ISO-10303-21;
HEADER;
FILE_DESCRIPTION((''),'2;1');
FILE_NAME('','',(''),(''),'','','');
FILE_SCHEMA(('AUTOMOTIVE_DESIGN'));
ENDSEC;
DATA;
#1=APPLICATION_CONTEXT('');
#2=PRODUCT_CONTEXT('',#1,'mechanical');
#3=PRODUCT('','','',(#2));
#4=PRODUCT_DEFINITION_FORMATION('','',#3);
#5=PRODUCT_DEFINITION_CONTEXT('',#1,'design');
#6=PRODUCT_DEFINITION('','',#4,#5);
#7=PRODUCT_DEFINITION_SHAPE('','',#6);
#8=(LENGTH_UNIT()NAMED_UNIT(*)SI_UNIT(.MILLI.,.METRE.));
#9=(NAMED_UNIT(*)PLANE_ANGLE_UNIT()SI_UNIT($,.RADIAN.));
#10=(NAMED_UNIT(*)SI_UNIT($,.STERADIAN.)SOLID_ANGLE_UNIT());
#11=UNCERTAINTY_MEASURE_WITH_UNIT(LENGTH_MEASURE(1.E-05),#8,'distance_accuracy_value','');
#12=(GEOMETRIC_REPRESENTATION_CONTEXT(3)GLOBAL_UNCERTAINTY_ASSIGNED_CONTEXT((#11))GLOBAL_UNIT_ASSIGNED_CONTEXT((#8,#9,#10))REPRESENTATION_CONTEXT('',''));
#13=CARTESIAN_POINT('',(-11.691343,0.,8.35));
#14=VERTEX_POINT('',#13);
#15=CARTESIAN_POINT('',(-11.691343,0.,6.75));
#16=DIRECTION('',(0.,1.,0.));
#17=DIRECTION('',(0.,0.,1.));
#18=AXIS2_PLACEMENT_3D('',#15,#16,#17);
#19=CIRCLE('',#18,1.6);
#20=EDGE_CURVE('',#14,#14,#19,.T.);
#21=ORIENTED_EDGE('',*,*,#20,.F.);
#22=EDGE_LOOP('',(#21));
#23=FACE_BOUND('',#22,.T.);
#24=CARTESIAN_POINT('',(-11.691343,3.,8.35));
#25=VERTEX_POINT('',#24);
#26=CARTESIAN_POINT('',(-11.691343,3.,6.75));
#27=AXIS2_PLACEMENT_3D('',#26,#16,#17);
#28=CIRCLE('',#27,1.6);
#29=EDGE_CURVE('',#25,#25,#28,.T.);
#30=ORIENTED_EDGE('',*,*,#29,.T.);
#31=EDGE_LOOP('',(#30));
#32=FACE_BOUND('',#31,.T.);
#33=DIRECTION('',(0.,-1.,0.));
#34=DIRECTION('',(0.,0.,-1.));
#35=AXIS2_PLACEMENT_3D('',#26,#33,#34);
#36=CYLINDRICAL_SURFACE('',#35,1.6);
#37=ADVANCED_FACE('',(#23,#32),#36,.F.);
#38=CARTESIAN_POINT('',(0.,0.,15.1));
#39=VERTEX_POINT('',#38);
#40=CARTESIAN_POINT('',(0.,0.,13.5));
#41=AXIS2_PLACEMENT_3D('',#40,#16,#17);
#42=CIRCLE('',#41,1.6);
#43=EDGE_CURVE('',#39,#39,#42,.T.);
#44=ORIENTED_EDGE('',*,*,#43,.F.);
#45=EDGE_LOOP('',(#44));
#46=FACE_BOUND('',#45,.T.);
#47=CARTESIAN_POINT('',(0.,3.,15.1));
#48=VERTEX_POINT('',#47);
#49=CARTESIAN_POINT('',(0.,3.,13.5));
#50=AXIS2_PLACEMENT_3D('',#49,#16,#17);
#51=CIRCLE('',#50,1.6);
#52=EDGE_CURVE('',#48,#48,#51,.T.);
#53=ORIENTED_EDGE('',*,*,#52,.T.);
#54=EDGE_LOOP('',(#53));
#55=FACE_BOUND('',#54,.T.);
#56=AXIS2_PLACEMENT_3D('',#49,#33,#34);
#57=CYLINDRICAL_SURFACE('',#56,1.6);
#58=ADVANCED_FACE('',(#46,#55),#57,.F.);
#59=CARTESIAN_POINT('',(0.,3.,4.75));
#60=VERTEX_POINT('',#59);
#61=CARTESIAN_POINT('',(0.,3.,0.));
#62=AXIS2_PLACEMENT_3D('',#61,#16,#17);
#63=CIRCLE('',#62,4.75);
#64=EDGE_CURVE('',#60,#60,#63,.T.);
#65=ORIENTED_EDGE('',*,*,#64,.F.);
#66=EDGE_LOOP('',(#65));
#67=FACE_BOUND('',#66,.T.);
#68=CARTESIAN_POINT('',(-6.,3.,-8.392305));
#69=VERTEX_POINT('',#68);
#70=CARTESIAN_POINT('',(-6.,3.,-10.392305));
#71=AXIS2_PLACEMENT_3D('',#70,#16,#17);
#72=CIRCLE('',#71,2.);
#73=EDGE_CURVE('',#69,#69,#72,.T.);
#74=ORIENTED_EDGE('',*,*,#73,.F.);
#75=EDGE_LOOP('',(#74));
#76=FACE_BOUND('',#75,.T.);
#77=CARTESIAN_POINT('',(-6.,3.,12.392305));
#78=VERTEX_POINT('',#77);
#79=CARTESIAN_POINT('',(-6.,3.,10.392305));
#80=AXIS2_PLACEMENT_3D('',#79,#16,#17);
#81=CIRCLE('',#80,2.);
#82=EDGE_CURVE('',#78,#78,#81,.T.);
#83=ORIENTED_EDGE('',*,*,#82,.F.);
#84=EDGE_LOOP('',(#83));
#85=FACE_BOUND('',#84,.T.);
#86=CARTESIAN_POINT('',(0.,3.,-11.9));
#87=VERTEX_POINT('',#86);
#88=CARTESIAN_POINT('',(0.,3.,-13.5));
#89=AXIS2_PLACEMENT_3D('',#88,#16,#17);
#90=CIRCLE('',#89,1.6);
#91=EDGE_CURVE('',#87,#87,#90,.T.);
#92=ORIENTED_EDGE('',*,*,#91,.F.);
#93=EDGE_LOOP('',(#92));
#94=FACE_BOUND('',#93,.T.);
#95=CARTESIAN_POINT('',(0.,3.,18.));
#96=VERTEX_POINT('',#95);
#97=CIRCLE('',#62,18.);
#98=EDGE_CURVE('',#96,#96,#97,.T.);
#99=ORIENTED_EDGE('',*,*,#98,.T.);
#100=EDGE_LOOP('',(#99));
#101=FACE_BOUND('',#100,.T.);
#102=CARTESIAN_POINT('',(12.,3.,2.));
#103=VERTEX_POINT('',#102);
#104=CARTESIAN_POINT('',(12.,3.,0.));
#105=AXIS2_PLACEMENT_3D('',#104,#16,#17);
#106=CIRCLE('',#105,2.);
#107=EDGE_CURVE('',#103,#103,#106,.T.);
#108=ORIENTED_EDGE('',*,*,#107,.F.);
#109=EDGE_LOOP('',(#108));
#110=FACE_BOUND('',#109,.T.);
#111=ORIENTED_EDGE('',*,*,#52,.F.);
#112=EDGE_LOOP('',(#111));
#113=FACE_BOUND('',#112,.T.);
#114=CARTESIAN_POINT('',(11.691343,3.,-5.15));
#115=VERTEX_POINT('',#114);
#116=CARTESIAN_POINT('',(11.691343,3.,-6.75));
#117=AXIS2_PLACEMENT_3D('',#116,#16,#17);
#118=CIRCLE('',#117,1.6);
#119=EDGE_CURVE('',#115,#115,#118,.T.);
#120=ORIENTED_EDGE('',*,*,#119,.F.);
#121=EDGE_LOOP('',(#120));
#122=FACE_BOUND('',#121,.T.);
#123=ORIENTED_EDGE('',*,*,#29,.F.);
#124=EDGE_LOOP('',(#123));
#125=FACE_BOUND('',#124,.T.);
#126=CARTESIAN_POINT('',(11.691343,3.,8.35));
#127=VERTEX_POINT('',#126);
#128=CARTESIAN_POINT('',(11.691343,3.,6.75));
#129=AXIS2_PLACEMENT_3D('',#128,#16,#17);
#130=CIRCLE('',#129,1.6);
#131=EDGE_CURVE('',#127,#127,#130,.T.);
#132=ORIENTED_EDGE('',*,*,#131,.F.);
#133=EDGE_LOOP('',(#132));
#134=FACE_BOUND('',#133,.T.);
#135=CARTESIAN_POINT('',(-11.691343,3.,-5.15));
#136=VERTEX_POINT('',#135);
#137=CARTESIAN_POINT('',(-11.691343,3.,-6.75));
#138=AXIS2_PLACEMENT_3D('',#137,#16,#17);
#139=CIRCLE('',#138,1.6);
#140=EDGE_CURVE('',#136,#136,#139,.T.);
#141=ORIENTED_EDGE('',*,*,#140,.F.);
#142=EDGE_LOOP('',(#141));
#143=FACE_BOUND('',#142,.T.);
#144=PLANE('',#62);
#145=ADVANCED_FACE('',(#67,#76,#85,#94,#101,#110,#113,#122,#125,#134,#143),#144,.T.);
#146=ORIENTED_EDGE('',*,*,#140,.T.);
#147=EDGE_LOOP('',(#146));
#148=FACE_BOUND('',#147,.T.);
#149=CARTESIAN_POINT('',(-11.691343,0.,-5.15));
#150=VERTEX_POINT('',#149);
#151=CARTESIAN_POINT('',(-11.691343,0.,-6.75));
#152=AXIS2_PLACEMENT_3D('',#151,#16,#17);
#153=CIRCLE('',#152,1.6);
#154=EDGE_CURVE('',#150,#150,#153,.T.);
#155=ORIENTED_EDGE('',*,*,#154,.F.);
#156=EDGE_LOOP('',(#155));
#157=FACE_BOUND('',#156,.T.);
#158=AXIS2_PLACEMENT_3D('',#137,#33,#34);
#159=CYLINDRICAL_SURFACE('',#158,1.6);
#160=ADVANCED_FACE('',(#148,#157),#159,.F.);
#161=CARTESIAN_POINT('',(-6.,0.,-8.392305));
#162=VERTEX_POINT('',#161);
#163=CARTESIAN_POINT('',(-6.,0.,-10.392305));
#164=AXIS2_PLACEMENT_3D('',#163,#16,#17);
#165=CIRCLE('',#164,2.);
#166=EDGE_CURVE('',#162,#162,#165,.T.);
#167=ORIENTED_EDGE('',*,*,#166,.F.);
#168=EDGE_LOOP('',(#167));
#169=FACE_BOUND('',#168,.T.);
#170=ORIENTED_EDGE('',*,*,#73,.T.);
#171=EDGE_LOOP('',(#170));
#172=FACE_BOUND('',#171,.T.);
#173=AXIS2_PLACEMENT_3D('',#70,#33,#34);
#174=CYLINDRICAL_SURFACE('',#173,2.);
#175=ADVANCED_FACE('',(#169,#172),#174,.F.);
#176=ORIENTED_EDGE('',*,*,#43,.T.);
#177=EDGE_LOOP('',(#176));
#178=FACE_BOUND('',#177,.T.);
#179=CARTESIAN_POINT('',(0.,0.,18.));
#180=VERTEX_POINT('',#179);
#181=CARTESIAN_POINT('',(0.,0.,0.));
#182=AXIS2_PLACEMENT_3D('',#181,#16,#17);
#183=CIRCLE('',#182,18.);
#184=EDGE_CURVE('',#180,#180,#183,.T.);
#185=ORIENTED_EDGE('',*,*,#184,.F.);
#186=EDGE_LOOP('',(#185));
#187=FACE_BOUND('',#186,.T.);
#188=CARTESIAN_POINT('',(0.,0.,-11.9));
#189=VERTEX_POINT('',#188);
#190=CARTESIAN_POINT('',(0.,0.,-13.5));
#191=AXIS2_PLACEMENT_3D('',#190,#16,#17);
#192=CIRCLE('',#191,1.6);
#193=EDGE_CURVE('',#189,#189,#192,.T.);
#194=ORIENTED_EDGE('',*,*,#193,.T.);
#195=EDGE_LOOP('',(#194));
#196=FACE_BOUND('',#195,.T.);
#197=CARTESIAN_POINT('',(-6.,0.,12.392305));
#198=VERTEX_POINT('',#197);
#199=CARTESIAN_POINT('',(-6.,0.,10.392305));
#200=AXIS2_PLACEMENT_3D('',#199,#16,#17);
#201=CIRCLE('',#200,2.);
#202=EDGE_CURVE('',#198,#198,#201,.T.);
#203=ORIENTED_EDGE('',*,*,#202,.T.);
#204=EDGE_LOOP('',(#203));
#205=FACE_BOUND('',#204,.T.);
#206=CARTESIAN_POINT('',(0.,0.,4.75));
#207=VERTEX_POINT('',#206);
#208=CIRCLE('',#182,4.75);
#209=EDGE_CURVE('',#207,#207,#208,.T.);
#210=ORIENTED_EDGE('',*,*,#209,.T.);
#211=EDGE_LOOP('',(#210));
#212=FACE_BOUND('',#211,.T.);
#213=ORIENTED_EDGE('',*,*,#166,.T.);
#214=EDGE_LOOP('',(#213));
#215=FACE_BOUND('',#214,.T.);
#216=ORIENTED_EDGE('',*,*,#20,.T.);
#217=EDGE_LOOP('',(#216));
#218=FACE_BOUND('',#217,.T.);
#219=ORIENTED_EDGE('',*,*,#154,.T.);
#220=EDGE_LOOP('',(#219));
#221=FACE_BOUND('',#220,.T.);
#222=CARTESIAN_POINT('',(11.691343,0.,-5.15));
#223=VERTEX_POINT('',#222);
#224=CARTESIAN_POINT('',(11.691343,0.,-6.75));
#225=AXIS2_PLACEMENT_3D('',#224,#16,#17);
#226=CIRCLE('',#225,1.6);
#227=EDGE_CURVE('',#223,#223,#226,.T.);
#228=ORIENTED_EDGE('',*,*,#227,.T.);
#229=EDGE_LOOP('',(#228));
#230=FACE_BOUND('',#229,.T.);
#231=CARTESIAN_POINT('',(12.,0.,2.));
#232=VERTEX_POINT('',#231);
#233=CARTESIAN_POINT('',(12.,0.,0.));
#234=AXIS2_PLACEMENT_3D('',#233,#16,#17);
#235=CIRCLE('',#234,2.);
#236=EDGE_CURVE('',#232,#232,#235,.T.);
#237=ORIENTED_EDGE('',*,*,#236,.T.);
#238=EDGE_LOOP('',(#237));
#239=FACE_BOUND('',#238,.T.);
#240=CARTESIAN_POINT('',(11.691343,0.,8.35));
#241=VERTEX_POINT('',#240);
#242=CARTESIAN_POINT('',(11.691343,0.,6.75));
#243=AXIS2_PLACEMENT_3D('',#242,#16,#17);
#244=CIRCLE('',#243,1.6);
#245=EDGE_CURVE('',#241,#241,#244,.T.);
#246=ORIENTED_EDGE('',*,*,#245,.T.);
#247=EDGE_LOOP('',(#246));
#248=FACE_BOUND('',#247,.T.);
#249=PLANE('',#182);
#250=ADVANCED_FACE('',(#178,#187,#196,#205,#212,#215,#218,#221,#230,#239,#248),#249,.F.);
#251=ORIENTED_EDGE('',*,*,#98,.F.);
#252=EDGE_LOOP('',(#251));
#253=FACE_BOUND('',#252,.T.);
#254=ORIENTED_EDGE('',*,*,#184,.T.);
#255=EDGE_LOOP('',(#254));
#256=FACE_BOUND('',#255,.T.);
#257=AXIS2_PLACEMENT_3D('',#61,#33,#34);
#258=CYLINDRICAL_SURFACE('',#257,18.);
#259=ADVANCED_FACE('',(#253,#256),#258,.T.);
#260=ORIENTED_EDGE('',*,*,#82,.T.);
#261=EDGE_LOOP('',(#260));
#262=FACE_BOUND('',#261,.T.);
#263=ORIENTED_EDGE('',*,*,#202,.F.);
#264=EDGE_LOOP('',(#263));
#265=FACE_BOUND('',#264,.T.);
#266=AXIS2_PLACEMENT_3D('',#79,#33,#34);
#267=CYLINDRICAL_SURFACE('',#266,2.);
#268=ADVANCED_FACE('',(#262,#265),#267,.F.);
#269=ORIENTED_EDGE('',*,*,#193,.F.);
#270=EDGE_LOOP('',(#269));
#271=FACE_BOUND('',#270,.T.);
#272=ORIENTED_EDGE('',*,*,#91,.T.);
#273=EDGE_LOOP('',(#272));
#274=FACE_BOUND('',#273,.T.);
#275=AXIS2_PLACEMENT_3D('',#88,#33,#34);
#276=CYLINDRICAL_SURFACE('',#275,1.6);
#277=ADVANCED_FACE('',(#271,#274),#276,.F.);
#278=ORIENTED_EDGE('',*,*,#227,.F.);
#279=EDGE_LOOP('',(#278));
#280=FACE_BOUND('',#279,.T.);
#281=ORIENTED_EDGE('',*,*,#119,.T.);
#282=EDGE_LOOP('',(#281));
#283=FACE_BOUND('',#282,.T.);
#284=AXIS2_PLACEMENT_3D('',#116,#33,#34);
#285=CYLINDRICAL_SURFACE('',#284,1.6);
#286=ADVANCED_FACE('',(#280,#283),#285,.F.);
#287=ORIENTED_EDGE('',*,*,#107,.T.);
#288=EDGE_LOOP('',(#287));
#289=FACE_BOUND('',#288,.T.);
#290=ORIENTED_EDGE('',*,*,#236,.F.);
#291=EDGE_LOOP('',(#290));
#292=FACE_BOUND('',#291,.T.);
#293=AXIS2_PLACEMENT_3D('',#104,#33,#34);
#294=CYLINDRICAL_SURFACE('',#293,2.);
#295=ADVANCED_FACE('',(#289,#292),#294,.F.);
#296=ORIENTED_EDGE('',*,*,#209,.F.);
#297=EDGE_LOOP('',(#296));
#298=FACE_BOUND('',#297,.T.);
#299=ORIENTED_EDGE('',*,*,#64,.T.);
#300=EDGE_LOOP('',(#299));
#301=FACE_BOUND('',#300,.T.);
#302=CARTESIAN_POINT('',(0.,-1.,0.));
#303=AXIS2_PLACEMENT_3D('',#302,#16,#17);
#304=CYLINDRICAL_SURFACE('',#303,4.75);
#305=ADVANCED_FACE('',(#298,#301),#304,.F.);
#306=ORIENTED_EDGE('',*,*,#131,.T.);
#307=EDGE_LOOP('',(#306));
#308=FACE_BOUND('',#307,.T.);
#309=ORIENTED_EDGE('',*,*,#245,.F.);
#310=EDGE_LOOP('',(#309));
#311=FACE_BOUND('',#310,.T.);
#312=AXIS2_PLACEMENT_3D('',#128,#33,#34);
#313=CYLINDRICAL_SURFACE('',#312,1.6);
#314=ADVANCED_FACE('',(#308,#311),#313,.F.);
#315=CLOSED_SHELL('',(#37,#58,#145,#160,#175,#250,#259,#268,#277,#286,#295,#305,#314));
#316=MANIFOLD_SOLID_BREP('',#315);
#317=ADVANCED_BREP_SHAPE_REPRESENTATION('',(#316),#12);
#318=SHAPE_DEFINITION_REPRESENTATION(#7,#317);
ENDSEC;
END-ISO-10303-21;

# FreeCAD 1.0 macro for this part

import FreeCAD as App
import Part
import Sketcher

V = App.Vector

doc = App.newDocument("Part")
body = doc.addObject("PartDesign::Body", "Body")

sketch1 = doc.addObject("Sketcher::SketchObject", "Sketch")
body.addObject(sketch1)
sketch1.AttachmentSupport = (doc.XZ_Plane, [""])
sketch1.MapMode = "FlatFace"
sketch1.addGeometry(Part.Circle(V(0, 0, 0), V(0, 0, 1), 18), False)
sketch1.addGeometry(Part.Circle(V(-11.691343, -6.75, 0), V(0, 0, 1), 1.6), False)
sketch1.addGeometry(Part.Circle(V(-6, -10.392305, 0), V(0, 0, 1), 2), False)
sketch1.addGeometry(Part.Circle(V(0, -13.5, 0), V(0, 0, 1), 1.6), False)
sketch1.addGeometry(Part.Circle(V(-11.691343, 6.75, 0), V(0, 0, 1), 1.6), False)
sketch1.addGeometry(Part.Circle(V(-6, 10.392305, 0), V(0, 0, 1), 2), False)
sketch1.addGeometry(Part.Circle(V(0, 13.5, 0), V(0, 0, 1), 1.6), False)
sketch1.addGeometry(Part.Circle(V(11.691343, -6.75, 0), V(0, 0, 1), 1.6), False)
sketch1.addGeometry(Part.Circle(V(12, 0, 0), V(0, 0, 1), 2), False)
sketch1.addGeometry(Part.Circle(V(11.691343, 6.75, 0), V(0, 0, 1), 1.6), False)
sketch1.addConstraint(Sketcher.Constraint("Coincident", 0, 3, -1, 1))
sketch1.addConstraint(Sketcher.Constraint("Equal", 1, 3))
sketch1.addConstraint(Sketcher.Constraint("Equal", 3, 4))
sketch1.addConstraint(Sketcher.Constraint("Equal", 2, 5))
sketch1.addConstraint(Sketcher.Constraint("Equal", 4, 6))
sketch1.addConstraint(Sketcher.Constraint("Equal", 6, 7))
sketch1.addConstraint(Sketcher.Constraint("Equal", 5, 8))
sketch1.addConstraint(Sketcher.Constraint("Equal", 7, 9))
sketch1.addConstraint(Sketcher.Constraint("Symmetric", 3, 3, 6, 3, -1, 1))
sketch1.addConstraint(Sketcher.Constraint("Symmetric", 4, 3, 7, 3, -1, 1))
sketch1.addConstraint(Sketcher.Constraint("Symmetric", 1, 3, 9, 3, -1, 1))
sketch1.addConstraint(Sketcher.Constraint("Symmetric", 1, 3, 7, 3, -2))
sketch1.addConstraint(Sketcher.Constraint("Symmetric", 2, 3, 5, 3, -1))
sketch1.addConstraint(Sketcher.Constraint("PointOnObject", 3, 3, -2))
sketch1.addConstraint(Sketcher.Constraint("PointOnObject", 8, 3, -1))
sketch1.addConstraint(Sketcher.Constraint("Diameter", 0, 36.0))
sketch1.addConstraint(Sketcher.Constraint("Diameter", 2, 4.0))
sketch1.addConstraint(Sketcher.Constraint("Diameter", 1, 3.2))
sketch1.addConstraint(Sketcher.Constraint("DistanceX", 2, 3, -1, 1, 6.0))
sketch1.addConstraint(Sketcher.Constraint("DistanceX", -1, 1, 8, 3, 12.0))
sketch1.addConstraint(Sketcher.Constraint("DistanceY", 3, 3, -1, 1, 13.5))
sketch1.addConstraint(Sketcher.Constraint("DistanceY", 1, 3, 4, 3, 13.5))
sketch1.addConstraint(Sketcher.Constraint("DistanceY", 2, 3, 5, 3, 20.78461))
sketch1.addConstraint(Sketcher.Constraint("DistanceX", 1, 3, -1, 1, 11.691343))
pad1 = doc.addObject("PartDesign::Pad", "Pad")
body.addObject(pad1)
pad1.Profile = sketch1
pad1.Length = 3
pad1.Reversed = True

sketch2 = doc.addObject("Sketcher::SketchObject", "Sketch001")
body.addObject(sketch2)
sketch2.AttachmentSupport = (doc.XZ_Plane, [""])
sketch2.MapMode = "FlatFace"
sketch2.AttachmentOffset = App.Placement(V(0, 0, -3), App.Rotation())
sketch2.addGeometry(Part.Circle(V(0, 0, 0), V(0, 0, 1), 4.75), False)
sketch2.addConstraint(Sketcher.Constraint("Coincident", 0, 3, -1, 1))
sketch2.addConstraint(Sketcher.Constraint("Diameter", 0, 9.5))
pocket1 = doc.addObject("PartDesign::Pocket", "Pocket")
body.addObject(pocket1)
pocket1.Profile = sketch2
pocket1.Length = 4
pocket1.Reversed = True

doc.recompute()
